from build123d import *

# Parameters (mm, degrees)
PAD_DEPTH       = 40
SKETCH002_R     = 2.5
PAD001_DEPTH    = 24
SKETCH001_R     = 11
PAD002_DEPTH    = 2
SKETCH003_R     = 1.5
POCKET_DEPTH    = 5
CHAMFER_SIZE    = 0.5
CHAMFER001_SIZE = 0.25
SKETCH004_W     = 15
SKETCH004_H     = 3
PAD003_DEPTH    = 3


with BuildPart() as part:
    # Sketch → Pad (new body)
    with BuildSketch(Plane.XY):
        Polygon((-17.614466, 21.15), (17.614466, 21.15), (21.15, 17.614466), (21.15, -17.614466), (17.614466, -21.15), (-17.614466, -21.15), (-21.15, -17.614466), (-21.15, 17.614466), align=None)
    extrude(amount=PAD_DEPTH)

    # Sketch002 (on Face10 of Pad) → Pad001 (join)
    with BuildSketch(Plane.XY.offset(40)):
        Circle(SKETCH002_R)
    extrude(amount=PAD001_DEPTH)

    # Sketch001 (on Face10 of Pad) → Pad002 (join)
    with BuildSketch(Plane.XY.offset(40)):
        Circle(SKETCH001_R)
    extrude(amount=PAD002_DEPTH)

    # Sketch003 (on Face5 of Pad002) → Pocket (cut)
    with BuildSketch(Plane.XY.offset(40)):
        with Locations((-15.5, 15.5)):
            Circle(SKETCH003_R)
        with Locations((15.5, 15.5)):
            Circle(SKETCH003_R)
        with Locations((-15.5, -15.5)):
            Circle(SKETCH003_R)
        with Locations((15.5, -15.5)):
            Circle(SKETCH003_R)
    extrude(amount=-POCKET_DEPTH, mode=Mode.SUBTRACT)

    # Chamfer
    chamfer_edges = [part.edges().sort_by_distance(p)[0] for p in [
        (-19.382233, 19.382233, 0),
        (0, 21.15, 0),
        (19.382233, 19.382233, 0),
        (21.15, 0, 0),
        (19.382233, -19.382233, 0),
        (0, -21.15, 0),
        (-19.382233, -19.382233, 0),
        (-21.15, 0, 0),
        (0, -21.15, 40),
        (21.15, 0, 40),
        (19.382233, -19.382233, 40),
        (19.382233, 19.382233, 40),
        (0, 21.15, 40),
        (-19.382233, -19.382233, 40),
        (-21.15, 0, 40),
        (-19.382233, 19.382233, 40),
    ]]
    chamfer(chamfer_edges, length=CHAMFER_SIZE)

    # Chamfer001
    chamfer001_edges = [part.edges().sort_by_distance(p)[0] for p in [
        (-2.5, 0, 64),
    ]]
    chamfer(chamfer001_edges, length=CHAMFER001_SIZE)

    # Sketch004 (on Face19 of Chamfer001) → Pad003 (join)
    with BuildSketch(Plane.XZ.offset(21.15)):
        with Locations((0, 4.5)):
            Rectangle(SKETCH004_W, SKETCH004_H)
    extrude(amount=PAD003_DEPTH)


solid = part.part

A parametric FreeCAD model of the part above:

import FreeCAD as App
import Part
import Sketcher

V = App.Vector


def edges_at(feature, points):
    """Names of the edges that pass closest to the given points."""
    edges = feature.Shape.Edges
    near = lambda p: min(range(len(edges)), key=lambda i: edges[i].distToShape(Part.Vertex(*p))[0])
    return sorted({f"Edge{near(p) + 1}" for p in points})


def add_polygon(sketch, points):
    """Adds a closed chain of lines whose ends are joined by coincident constraints."""
    first, n = sketch.GeometryCount, len(points)
    for a, b in zip(points, points[1:] + points[:1]):
        sketch.addGeometry(Part.LineSegment(App.Vector(*a, 0), App.Vector(*b, 0)), False)
    for i in range(n):
        sketch.addConstraint(Sketcher.Constraint("Coincident", first + i, 2, first + (i + 1) % n, 1))

doc = App.newDocument("Part")
body = doc.addObject("PartDesign::Body", "Body")

# Sketch on XY plane
sketch1 = doc.addObject("Sketcher::SketchObject", "Sketch")
body.addObject(sketch1)
sketch1.AttachmentSupport = (doc.XY_Plane, [""])
sketch1.MapMode = "FlatFace"
add_polygon(sketch1, [(17.614466, 21.15), (-17.614466, 21.15), (-21.15, 17.614466), (-21.15, -17.614466), (-17.614466, -21.15), (17.614466, -21.15), (21.15, -17.614466), (21.15, 17.614466)])  # lines 0-7
sketch1.addConstraint([
    Sketcher.Constraint("Horizontal", 0),
    Sketcher.Constraint("Vertical", 2),
    Sketcher.Constraint("Horizontal", 4),
    Sketcher.Constraint("Vertical", 6),
    Sketcher.Constraint("Symmetric", 0, 2, 4, 2, -1, 1),
    Sketcher.Constraint("Symmetric", 1, 2, 5, 2, -1, 1),
    Sketcher.Constraint("Perpendicular", 1, 3),
    Sketcher.Constraint("Perpendicular", 5, 7),
    Sketcher.Constraint("Horizontal", 2, 2, 5, 2),
    Sketcher.Constraint("Horizontal", 1, 2, 6, 2),
    Sketcher.Constraint("Vertical", 0, 2, 3, 2),
    Sketcher.Constraint("Equal", 4, 2),
    Sketcher.Constraint("Distance", 1, 5.0),
    Sketcher.Constraint("DistanceY", 3, 2, 0, 2, 42.3),
])
pad1 = doc.addObject("PartDesign::Pad", "Pad")
body.addObject(pad1)
pad1.Profile = sketch1
pad1.Length = 40

# Sketch on XY plane
sketch2 = doc.addObject("Sketcher::SketchObject", "Sketch001")
body.addObject(sketch2)
sketch2.AttachmentSupport = (doc.XY_Plane, [""])
sketch2.MapMode = "FlatFace"
sketch2.AttachmentOffset = App.Placement(V(0, 0, 40), App.Rotation())
sketch2.addGeometry(Part.Circle(V(0, 0, 0), V(0, 0, 1), 2.5), False)
sketch2.addConstraint([
    Sketcher.Constraint("Coincident", 0, 3, -1, 1),
    Sketcher.Constraint("Diameter", 0, 5.0),
])
pad2 = doc.addObject("PartDesign::Pad", "Pad001")
body.addObject(pad2)
pad2.Profile = sketch2
pad2.Length = 24

# Sketch on XY plane
sketch3 = doc.addObject("Sketcher::SketchObject", "Sketch002")
body.addObject(sketch3)
sketch3.AttachmentSupport = (doc.XY_Plane, [""])
sketch3.MapMode = "FlatFace"
sketch3.AttachmentOffset = App.Placement(V(0, 0, 40), App.Rotation())
sketch3.addGeometry(Part.Circle(V(0, 0, 0), V(0, 0, 1), 11), False)
sketch3.addConstraint([
    Sketcher.Constraint("Coincident", 0, 3, -1, 1),
    Sketcher.Constraint("Diameter", 0, 22.0),
])
pad3 = doc.addObject("PartDesign::Pad", "Pad002")
body.addObject(pad3)
pad3.Profile = sketch3
pad3.Length = 2

# Sketch on XY plane
sketch4 = doc.addObject("Sketcher::SketchObject", "Sketch003")
body.addObject(sketch4)
sketch4.AttachmentSupport = (doc.XY_Plane, [""])
sketch4.MapMode = "FlatFace"
sketch4.AttachmentOffset = App.Placement(V(0, 0, 40), App.Rotation())
sketch4.addGeometry([
    Part.Circle(V(-15.5, 15.5, 0), V(0, 0, 1), 1.5),
    Part.Circle(V(15.5, 15.5, 0), V(0, 0, 1), 1.5),
    Part.Circle(V(-15.5, -15.5, 0), V(0, 0, 1), 1.5),
    Part.Circle(V(15.5, -15.5, 0), V(0, 0, 1), 1.5),
], False)
sketch4.addConstraint([
    Sketcher.Constraint("Equal", 0, 1),
    Sketcher.Constraint("Equal", 1, 2),
    Sketcher.Constraint("Equal", 2, 3),
    Sketcher.Constraint("Symmetric", 1, 3, 2, 3, -1, 1),
    Sketcher.Constraint("Symmetric", 0, 3, 3, 3, -1, 1),
    Sketcher.Constraint("Symmetric", 0, 3, 1, 3, -2),
    Sketcher.Constraint("Diameter", 0, 3.0),
    Sketcher.Constraint("DistanceX", 0, 3, 1, 3, 31.0),
    Sketcher.Constraint("DistanceY", 2, 3, 0, 3, 31.0),
])
pocket1 = doc.addObject("PartDesign::Pocket", "Pocket")
body.addObject(pocket1)
pocket1.Profile = sketch4
pocket1.Length = 5
doc.recompute()

chamfer = doc.addObject("PartDesign::Chamfer", "Chamfer")
body.addObject(chamfer)
chamfer.Base = (pocket1, edges_at(pocket1, [
    (-19.382, 19.382, 0),
    (0, 21.15, 0),
    (19.382, 19.382, 0),
    (21.15, 0, 0),
    (19.382, -19.382, 0),
    (0, -21.15, 0),
    (-19.382, -19.382, 0),
    (-21.15, 0, 0),
    (0, -21.15, 40),
    (21.15, 0, 40),
    (19.382, -19.382, 40),
    (19.382, 19.382, 40),
    (0, 21.15, 40),
    (-19.382, -19.382, 40),
    (-21.15, 0, 40),
    (-19.382, 19.382, 40),
]))
chamfer.Size = 0.5
doc.recompute()

chamfer2 = doc.addObject("PartDesign::Chamfer", "Chamfer001")
body.addObject(chamfer2)
chamfer2.Base = (chamfer, edges_at(chamfer, [(-2.5, 0, 64)]))
chamfer2.Size = 0.25

# Sketch on XZ plane
sketch5 = doc.addObject("Sketcher::SketchObject", "Sketch004")
body.addObject(sketch5)
sketch5.AttachmentSupport = (doc.XZ_Plane, [""])
sketch5.MapMode = "FlatFace"
sketch5.AttachmentOffset = App.Placement(V(0, 0, 21.15), App.Rotation())
add_polygon(sketch5, [(-7.5, 6), (-7.5, 3), (7.5, 3), (7.5, 6)])  # lines 0-3
sketch5.addConstraint([
    Sketcher.Constraint("Vertical", 0),
    Sketcher.Constraint("Horizontal", 1),
    Sketcher.Constraint("Vertical", 2),
    Sketcher.Constraint("Horizontal", 3),
    Sketcher.Constraint("DistanceX", 1, 1, 1, 2, 15.0),
    Sketcher.Constraint("DistanceY", 0, 2, 0, 1, 3.0),
    Sketcher.Constraint("DistanceY", -1, 1, 0, 2, 3.0),
    Sketcher.Constraint("DistanceX", 0, 2, -1, 1, 7.5),
])
pad4 = doc.addObject("PartDesign::Pad", "Pad003")
body.addObject(pad4)
pad4.Profile = sketch5
pad4.Length = 3

doc.recompute()
